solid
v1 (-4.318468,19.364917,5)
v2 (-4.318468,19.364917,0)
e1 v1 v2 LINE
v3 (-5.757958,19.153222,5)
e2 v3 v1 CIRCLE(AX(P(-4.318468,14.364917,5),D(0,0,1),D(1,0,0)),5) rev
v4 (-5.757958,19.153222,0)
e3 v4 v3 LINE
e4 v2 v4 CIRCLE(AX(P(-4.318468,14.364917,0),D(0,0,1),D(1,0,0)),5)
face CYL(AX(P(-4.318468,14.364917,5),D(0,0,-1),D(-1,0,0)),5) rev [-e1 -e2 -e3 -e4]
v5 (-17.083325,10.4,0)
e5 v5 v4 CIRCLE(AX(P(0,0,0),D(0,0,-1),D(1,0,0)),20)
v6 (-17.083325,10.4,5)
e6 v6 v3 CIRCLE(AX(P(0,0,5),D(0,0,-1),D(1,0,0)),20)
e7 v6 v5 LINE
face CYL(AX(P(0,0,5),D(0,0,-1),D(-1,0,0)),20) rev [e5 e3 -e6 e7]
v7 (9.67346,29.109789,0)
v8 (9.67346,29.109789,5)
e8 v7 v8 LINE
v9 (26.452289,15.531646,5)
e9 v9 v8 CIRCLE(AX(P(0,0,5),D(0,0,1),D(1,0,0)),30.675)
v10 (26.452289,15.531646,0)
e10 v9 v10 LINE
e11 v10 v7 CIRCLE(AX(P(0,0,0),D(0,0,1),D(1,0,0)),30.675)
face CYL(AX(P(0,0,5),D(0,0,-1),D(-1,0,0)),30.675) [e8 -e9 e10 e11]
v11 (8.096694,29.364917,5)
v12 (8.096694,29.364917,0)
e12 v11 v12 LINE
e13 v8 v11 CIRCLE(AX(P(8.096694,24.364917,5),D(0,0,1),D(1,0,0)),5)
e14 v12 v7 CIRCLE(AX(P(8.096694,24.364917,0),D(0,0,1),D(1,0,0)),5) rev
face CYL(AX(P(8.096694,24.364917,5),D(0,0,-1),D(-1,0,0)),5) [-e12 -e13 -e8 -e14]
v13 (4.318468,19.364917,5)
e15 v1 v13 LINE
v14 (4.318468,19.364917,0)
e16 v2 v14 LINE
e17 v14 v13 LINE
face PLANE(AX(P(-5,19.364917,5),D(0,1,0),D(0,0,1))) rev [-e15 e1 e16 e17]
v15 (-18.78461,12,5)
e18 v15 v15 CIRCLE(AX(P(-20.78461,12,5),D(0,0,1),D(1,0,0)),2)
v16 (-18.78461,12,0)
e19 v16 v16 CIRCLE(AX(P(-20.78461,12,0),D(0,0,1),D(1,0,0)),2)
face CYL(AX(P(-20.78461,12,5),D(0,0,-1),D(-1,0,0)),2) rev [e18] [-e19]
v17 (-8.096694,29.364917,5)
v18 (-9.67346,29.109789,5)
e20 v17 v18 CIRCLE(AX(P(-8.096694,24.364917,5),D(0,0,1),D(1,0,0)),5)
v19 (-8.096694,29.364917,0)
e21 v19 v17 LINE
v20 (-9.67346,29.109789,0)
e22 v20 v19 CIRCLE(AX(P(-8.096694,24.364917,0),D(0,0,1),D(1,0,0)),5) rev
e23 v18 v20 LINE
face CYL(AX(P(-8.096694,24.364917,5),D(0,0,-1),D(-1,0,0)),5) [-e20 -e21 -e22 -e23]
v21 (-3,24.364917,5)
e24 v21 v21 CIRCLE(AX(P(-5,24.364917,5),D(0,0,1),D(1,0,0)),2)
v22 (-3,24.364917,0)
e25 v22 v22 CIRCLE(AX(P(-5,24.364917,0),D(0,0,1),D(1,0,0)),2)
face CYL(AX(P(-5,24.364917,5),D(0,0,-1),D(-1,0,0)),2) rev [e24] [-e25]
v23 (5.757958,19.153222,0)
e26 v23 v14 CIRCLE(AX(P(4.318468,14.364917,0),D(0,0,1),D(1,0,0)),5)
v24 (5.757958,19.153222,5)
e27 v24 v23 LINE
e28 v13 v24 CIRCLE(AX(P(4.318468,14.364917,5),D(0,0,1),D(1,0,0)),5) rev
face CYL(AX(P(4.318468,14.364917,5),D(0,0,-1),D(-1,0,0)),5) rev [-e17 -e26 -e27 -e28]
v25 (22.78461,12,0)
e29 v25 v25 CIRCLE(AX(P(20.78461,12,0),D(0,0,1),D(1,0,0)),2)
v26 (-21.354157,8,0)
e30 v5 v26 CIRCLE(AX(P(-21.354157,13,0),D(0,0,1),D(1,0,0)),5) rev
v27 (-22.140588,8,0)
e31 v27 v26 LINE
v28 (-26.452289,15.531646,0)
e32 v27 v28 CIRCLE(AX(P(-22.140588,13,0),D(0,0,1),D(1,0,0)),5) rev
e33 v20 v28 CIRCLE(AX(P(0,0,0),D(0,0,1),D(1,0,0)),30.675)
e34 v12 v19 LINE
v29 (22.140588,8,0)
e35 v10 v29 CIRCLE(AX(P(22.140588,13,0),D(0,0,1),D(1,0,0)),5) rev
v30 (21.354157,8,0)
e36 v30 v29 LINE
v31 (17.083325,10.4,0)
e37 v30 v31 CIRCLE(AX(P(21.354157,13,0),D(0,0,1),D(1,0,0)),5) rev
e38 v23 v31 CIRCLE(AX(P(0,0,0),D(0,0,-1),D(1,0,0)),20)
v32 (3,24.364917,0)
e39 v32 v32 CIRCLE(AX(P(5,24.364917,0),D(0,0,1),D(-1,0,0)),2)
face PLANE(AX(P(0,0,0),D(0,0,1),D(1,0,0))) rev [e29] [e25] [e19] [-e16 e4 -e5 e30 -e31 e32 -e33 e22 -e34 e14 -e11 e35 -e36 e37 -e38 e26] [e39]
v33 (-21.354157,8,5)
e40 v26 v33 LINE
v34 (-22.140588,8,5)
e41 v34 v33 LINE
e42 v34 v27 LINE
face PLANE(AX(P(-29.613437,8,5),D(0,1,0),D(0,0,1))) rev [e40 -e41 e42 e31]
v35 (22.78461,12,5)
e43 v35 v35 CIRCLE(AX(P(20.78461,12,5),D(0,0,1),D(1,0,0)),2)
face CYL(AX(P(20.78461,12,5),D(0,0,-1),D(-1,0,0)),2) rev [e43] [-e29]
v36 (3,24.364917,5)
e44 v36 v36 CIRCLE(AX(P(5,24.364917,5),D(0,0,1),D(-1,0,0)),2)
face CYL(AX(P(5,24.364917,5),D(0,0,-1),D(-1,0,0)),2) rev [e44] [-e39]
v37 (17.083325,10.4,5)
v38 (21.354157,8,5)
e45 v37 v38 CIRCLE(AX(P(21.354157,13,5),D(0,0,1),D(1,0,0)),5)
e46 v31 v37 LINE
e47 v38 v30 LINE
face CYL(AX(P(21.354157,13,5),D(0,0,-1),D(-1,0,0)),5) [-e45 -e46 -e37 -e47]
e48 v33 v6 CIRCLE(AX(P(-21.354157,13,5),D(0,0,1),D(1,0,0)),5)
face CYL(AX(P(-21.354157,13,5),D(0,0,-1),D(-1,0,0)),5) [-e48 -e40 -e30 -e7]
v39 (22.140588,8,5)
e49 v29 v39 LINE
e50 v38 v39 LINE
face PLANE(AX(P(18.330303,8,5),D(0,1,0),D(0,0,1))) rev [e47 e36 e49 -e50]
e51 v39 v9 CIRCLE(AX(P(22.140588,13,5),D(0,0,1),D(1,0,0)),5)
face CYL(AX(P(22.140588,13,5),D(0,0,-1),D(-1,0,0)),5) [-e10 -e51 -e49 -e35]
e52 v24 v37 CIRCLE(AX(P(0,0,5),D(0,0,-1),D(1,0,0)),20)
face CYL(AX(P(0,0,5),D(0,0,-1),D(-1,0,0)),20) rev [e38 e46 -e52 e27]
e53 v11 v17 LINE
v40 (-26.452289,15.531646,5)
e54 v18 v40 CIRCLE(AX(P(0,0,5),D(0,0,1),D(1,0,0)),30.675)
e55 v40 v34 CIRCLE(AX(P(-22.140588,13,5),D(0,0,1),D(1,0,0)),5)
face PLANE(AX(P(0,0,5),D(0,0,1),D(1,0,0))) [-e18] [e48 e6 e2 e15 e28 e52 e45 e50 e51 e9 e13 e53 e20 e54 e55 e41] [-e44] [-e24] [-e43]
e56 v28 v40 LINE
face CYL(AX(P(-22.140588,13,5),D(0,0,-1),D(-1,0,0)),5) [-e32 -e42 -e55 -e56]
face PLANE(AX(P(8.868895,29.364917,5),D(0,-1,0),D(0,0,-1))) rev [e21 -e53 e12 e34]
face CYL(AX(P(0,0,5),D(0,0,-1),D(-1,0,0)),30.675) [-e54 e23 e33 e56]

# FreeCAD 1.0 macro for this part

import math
import FreeCAD as App
import Part
import Sketcher
from FreeCAD import Vector


def edges_at(feature, points):
    """Names of the edges that pass closest to the given points."""
    edges = feature.Shape.Edges
    near = lambda p: min(range(len(edges)), key=lambda i: edges[i].distToShape(Part.Vertex(*p))[0])
    return sorted({f"Edge{near(p) + 1}" for p in points})

doc = App.newDocument("Part")
body = doc.addObject("PartDesign::Body", "Body")

# Sketch on XY plane
sketch1 = body.newObject("Sketcher::SketchObject", "Sketch")
sketch1.AttachmentSupport = (doc.getObject("XY_Plane"), [""])
sketch1.MapMode = "FlatFace"
sketch1.addGeometry(Part.LineSegment(Vector(-29.6, 8, 0), Vector(-18.3, 8, 0)), False)
sketch1.addGeometry(Part.ArcOfCircle(Part.Circle(Vector(0, 0, 0), Vector(0, 0, 1), 20), math.radians(104), math.radians(156)), False)
sketch1.addGeometry(Part.LineSegment(Vector(-5, 19.4, 0), Vector(5, 19.4, 0)), False)
sketch1.addGeometry(Part.ArcOfCircle(Part.Circle(Vector(0, 0, 0), Vector(0, 0, 1), 20), math.radians(24), math.radians(76)), False)
sketch1.addGeometry(Part.LineSegment(Vector(18.3, 8, 0), Vector(29.6, 8, 0)), False)
sketch1.addGeometry(Part.ArcOfCircle(Part.Circle(Vector(0, 0, 0), Vector(0, 0, 1), 30.7), math.radians(15), math.radians(73)), False)
sketch1.addGeometry(Part.LineSegment(Vector(8.9, 29.4, 0), Vector(-8.9, 29.4, 0)), False)
sketch1.addGeometry(Part.ArcOfCircle(Part.Circle(Vector(0, 0, 0), Vector(0, 0, 1), 30.7), math.radians(107), math.radians(165)), False)
sketch1.addGeometry(Part.Circle(Vector(-20.8, 12, 0), Vector(0, 0, 1), 2), False)
sketch1.addGeometry(Part.Circle(Vector(20.8, 12, 0), Vector(0, 0, 1), 2), False)
sketch1.addGeometry(Part.Circle(Vector(-5, 24.4, 0), Vector(0, 0, 1), 2), False)
sketch1.addGeometry(Part.Circle(Vector(5, 24.4, 0), Vector(0, 0, 1), 2), False)
sketch1.addConstraint(Sketcher.Constraint("Coincident", 0, 2, 1, 2))
sketch1.addConstraint(Sketcher.Constraint("Coincident", 1, 1, 2, 1))
sketch1.addConstraint(Sketcher.Constraint("Coincident", 2, 2, 3, 2))
sketch1.addConstraint(Sketcher.Constraint("Coincident", 3, 1, 4, 1))
sketch1.addConstraint(Sketcher.Constraint("Coincident", 4, 2, 5, 1))
sketch1.addConstraint(Sketcher.Constraint("Coincident", 5, 2, 6, 1))
sketch1.addConstraint(Sketcher.Constraint("Coincident", 6, 2, 7, 1))
sketch1.addConstraint(Sketcher.Constraint("Coincident", 7, 2, 0, 1))
sketch1.addConstraint(Sketcher.Constraint("Horizontal", 0))
sketch1.addConstraint(Sketcher.Constraint("Horizontal", 2))
sketch1.addConstraint(Sketcher.Constraint("Horizontal", 4))
sketch1.addConstraint(Sketcher.Constraint("Horizontal", 6))
sketch1.addConstraint(Sketcher.Constraint("Coincident", 1, 3, -1, 1))
sketch1.addConstraint(Sketcher.Constraint("Coincident", 3, 3, -1, 1))
sketch1.addConstraint(Sketcher.Constraint("Coincident", 5, 3, -1, 1))
sketch1.addConstraint(Sketcher.Constraint("Coincident", 7, 3, -1, 1))
sketch1.addConstraint(Sketcher.Constraint("Equal", 1, 3))
sketch1.addConstraint(Sketcher.Constraint("Equal", 5, 7))
sketch1.addConstraint(Sketcher.Constraint("Equal", 8, 9))
sketch1.addConstraint(Sketcher.Constraint("Equal", 9, 10))
sketch1.addConstraint(Sketcher.Constraint("Equal", 10, 11))
sketch1.addConstraint(Sketcher.Constraint("Symmetric", 8, 3, 9, 3, -2))
sketch1.addConstraint(Sketcher.Constraint("Symmetric", 10, 3, 11, 3, -2))
sketch1.addConstraint(Sketcher.Constraint("Horizontal", 0, 2, 3, 1))
sketch1.addConstraint(Sketcher.Constraint("Vertical", 10, 3, 1, 1))
sketch1.addConstraint(Sketcher.Constraint("Diameter", 8, 4.0))
sketch1.addConstraint(Sketcher.Constraint("Radius", 1, 20.0))
sketch1.addConstraint(Sketcher.Constraint("DistanceX", 2, 1, 2, 2, 10.0))
sketch1.addConstraint(Sketcher.Constraint("DistanceY", -1, 1, 8, 3, 12.0))
sketch1.addConstraint(Sketcher.Constraint("DistanceY", -1, 1, 0, 2, 8.0))
sketch1.addConstraint(Sketcher.Constraint("Radius", 5, 30.675))
sketch1.addConstraint(Sketcher.Constraint("DistanceY", 1, 1, 10, 3, 5.0))
sketch1.addConstraint(Sketcher.Constraint("DistanceY", 11, 3, 5, 2, 5.0))
sketch1.addConstraint(Sketcher.Constraint("DistanceX", 8, 3, -1, 1, 20.78461))
pad1 = body.newObject("PartDesign::Pad", "Pad")
pad1.Profile = sketch1
pad1.Length = 5
doc.recompute()

fillet = body.newObject("PartDesign::Fillet", "Fillet")
fillet.Base = (pad1, edges_at(pad1, [
    (-18.33, 8, 2.5),
    (-29.613, 8, 2.5),
    (-8.869, 29.365, 2.5),
    (8.869, 29.365, 2.5),
    (29.613, 8, 2.5),
    (18.33, 8, 2.5),
    (5, 19.365, 2.5),
    (-5, 19.365, 2.5),
]))
fillet.Radius = 5

doc.recompute()
